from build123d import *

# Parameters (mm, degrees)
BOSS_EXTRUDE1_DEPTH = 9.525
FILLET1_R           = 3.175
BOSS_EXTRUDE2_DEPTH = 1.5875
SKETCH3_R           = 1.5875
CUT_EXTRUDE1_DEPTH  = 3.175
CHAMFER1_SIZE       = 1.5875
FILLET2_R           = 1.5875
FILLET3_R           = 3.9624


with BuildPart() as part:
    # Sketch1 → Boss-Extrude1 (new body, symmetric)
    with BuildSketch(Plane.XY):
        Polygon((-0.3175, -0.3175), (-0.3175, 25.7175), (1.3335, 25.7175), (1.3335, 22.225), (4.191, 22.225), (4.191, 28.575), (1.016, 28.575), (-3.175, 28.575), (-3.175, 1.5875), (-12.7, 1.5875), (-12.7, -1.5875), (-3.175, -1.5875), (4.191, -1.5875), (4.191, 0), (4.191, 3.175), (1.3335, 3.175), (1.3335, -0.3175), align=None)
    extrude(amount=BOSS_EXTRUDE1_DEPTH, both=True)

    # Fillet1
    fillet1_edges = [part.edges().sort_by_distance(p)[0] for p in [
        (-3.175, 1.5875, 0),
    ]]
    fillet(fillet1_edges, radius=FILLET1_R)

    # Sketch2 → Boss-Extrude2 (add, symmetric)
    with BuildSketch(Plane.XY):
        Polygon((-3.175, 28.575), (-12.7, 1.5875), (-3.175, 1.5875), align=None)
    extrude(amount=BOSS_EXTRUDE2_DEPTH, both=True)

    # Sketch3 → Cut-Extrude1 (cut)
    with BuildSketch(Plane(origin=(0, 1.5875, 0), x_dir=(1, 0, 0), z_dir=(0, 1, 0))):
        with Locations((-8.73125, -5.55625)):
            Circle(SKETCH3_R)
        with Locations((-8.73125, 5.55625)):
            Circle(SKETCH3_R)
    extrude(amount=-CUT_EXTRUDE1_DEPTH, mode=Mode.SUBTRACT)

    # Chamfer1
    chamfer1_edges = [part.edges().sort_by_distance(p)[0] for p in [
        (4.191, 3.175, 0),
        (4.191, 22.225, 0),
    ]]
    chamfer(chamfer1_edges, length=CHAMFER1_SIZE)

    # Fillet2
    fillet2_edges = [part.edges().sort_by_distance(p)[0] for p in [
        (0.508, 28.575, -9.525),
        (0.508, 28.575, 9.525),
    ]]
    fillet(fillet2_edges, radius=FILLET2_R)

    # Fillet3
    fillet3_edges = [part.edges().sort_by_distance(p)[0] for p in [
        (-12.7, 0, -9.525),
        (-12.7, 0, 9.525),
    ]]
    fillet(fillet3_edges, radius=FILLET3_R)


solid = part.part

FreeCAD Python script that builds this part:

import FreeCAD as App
import Part
import Sketcher
Q = App.Units.Quantity


def edges_at(feature, points):
    """Names of the edges that pass closest to the given points."""
    edges = feature.Shape.Edges
    near = lambda p: min(range(len(edges)), key=lambda i: edges[i].distToShape(Part.Vertex(*p))[0])
    return sorted({f"Edge{near(p) + 1}" for p in points})

doc = App.newDocument("Part")
body = doc.addObject("PartDesign::Body", "Body")

# Sketch on XY plane
sketch1 = body.newObject("Sketcher::SketchObject", "Sketch")
sketch1.AttachmentSupport = (doc.getObject("XY_Plane"), [""])
sketch1.MapMode = "FlatFace"
sketch1.addGeometry(Part.LineSegment(App.Vector(-0.3, -0.3, 0), App.Vector(-0.3, 25.7, 0)), False)
sketch1.addGeometry(Part.LineSegment(App.Vector(-0.3, 25.7, 0), App.Vector(1.3, 25.7, 0)), False)
sketch1.addGeometry(Part.LineSegment(App.Vector(1.3, 25.7, 0), App.Vector(1.3, 22.2, 0)), False)
sketch1.addGeometry(Part.LineSegment(App.Vector(1.3, 22.2, 0), App.Vector(4.2, 22.2, 0)), False)
sketch1.addGeometry(Part.LineSegment(App.Vector(4.2, 22.2, 0), App.Vector(4.2, 28.6, 0)), False)
sketch1.addGeometry(Part.LineSegment(App.Vector(4.2, 28.6, 0), App.Vector(-3.2, 28.6, 0)), False)
sketch1.addGeometry(Part.LineSegment(App.Vector(-3.2, 28.6, 0), App.Vector(-3.2, 1.6, 0)), False)
sketch1.addGeometry(Part.LineSegment(App.Vector(-3.2, 1.6, 0), App.Vector(-12.7, 1.6, 0)), False)
sketch1.addGeometry(Part.LineSegment(App.Vector(-12.7, 1.6, 0), App.Vector(-12.7, -1.6, 0)), False)
sketch1.addGeometry(Part.LineSegment(App.Vector(-12.7, -1.6, 0), App.Vector(4.2, -1.6, 0)), False)
sketch1.addGeometry(Part.LineSegment(App.Vector(4.2, -1.6, 0), App.Vector(4.2, 3.2, 0)), False)
sketch1.addGeometry(Part.LineSegment(App.Vector(4.2, 3.2, 0), App.Vector(1.3, 3.2, 0)), False)
sketch1.addGeometry(Part.LineSegment(App.Vector(1.3, 3.2, 0), App.Vector(1.3, -0.3, 0)), False)
sketch1.addGeometry(Part.LineSegment(App.Vector(1.3, -0.3, 0), App.Vector(-0.3, -0.3, 0)), False)
sketch1.addConstraint(Sketcher.Constraint("Coincident", 0, 2, 1, 1))
sketch1.addConstraint(Sketcher.Constraint("Coincident", 1, 2, 2, 1))
sketch1.addConstraint(Sketcher.Constraint("Coincident", 2, 2, 3, 1))
sketch1.addConstraint(Sketcher.Constraint("Coincident", 3, 2, 4, 1))
sketch1.addConstraint(Sketcher.Constraint("Coincident", 4, 2, 5, 1))
sketch1.addConstraint(Sketcher.Constraint("Coincident", 5, 2, 6, 1))
sketch1.addConstraint(Sketcher.Constraint("Coincident", 6, 2, 7, 1))
sketch1.addConstraint(Sketcher.Constraint("Coincident", 7, 2, 8, 1))
sketch1.addConstraint(Sketcher.Constraint("Coincident", 8, 2, 9, 1))
sketch1.addConstraint(Sketcher.Constraint("Coincident", 9, 2, 10, 1))
sketch1.addConstraint(Sketcher.Constraint("Coincident", 10, 2, 11, 1))
sketch1.addConstraint(Sketcher.Constraint("Coincident", 11, 2, 12, 1))
sketch1.addConstraint(Sketcher.Constraint("Coincident", 12, 2, 13, 1))
sketch1.addConstraint(Sketcher.Constraint("Coincident", 13, 2, 0, 1))
sketch1.addConstraint(Sketcher.Constraint("Vertical", 0))
sketch1.addConstraint(Sketcher.Constraint("Horizontal", 1))
sketch1.addConstraint(Sketcher.Constraint("Vertical", 2))
sketch1.addConstraint(Sketcher.Constraint("Horizontal", 3))
sketch1.addConstraint(Sketcher.Constraint("Vertical", 4))
sketch1.addConstraint(Sketcher.Constraint("Horizontal", 5))
sketch1.addConstraint(Sketcher.Constraint("Vertical", 6))
sketch1.addConstraint(Sketcher.Constraint("Horizontal", 7))
sketch1.addConstraint(Sketcher.Constraint("Vertical", 8))
sketch1.addConstraint(Sketcher.Constraint("Horizontal", 9))
sketch1.addConstraint(Sketcher.Constraint("Vertical", 10))
sketch1.addConstraint(Sketcher.Constraint("Horizontal", 11))
sketch1.addConstraint(Sketcher.Constraint("Vertical", 12))
sketch1.addConstraint(Sketcher.Constraint("Horizontal", 13))
sketch1.addConstraint(Sketcher.Constraint("Vertical", 4, 2, 9, 2))
sketch1.addConstraint(Sketcher.Constraint("Vertical", 2, 2, 11, 2))
sketch1.addConstraint(Sketcher.Constraint("Equal", 2, 12))
sketch1.addConstraint(Sketcher.Constraint("DistanceX", 5, 2, 5, 1, Q("0.29 in")))
sketch1.addConstraint(Sketcher.Constraint("DistanceY", 4, 1, 4, 2, Q("0.25 in")))
sketch1.addConstraint(Sketcher.Constraint("DistanceX", 7, 2, -1, 1, Q("0.5 in")))
sketch1.addConstraint(Sketcher.Constraint("DistanceX", 1, 1, 1, 2, Q("0.065 in")))
sketch1.addConstraint(Sketcher.Constraint("DistanceX", 7, 2, 7, 1, Q("0.375 in")))
sketch1.addConstraint(Sketcher.Constraint("DistanceY", 0, 1, 0, 2, Q("1.025 in")))
sketch1.addConstraint(Sketcher.Constraint("DistanceY", 6, 2, 6, 1, Q("1.0625 in")))
sketch1.addConstraint(Sketcher.Constraint("DistanceY", 8, 2, 8, 1, Q("0.125 in")))
sketch1.addConstraint(Sketcher.Constraint("DistanceY", 10, 1, 10, 2, Q("0.1875 in")))
sketch1.addConstraint(Sketcher.Constraint("DistanceX", 3, 1, 3, 2, Q("0.1125 in")))
sketch1.addConstraint(Sketcher.Constraint("DistanceY", -1, 1, 2, 2, Q("0.875 in")))
pad1 = body.newObject("PartDesign::Pad", "Pad")
pad1.Profile = sketch1
pad1.Length = Q("0.75 in")
pad1.Midplane = True
doc.recompute()

fillet = body.newObject("PartDesign::Fillet", "Fillet")
fillet.Base = (pad1, edges_at(pad1, [(-3.175, 1.587, 0)]))
fillet.Radius = Q("0.125 in")

# Sketch on XY plane
sketch2 = body.newObject("Sketcher::SketchObject", "Sketch001")
sketch2.AttachmentSupport = (doc.getObject("XY_Plane"), [""])
sketch2.MapMode = "FlatFace"
sketch2.addGeometry(Part.LineSegment(App.Vector(-3, 29, 0), App.Vector(-13, 2, 0)), False)
sketch2.addGeometry(Part.LineSegment(App.Vector(-13, 2, 0), App.Vector(-3, 2, 0)), False)
sketch2.addGeometry(Part.LineSegment(App.Vector(-3, 2, 0), App.Vector(-3, 29, 0)), False)
sketch2.addConstraint(Sketcher.Constraint("Coincident", 0, 2, 1, 1))
sketch2.addConstraint(Sketcher.Constraint("Coincident", 1, 2, 2, 1))
sketch2.addConstraint(Sketcher.Constraint("Coincident", 2, 2, 0, 1))
sketch2.addConstraint(Sketcher.Constraint("Horizontal", 1))
sketch2.addConstraint(Sketcher.Constraint("Vertical", 2))
sketch2.addConstraint(Sketcher.Constraint("DistanceX", 0, 2, -1, 1, Q("0.5 in")))
sketch2.addConstraint(Sketcher.Constraint("DistanceX", 1, 1, 1, 2, Q("0.375 in")))
sketch2.addConstraint(Sketcher.Constraint("DistanceY", 2, 1, 2, 2, Q("1.0625 in")))
sketch2.addConstraint(Sketcher.Constraint("DistanceY", -1, 1, 0, 2, Q("0.0625 in")))
pad2 = body.newObject("PartDesign::Pad", "Pad001")
pad2.Profile = sketch2
pad2.Length = Q("0.125 in")
pad2.Midplane = True

# Sketch on XZ plane
sketch3 = body.newObject("Sketcher::SketchObject", "Sketch002")
sketch3.AttachmentSupport = (doc.getObject("XZ_Plane"), [""])
sketch3.MapMode = "FlatFace"
sketch3.AttachmentOffset = App.Placement(App.Vector(0, 0, -0.0625 * 25.4), App.Rotation())
sketch3.addGeometry(Part.Circle(App.Vector(-8.7, 5.6, 0), App.Vector(0, 0, 1), 1.6), False)
sketch3.addGeometry(Part.Circle(App.Vector(-8.7, -5.6, 0), App.Vector(0, 0, 1), 1.6), False)
sketch3.addConstraint(Sketcher.Constraint("Equal", 0, 1))
sketch3.addConstraint(Sketcher.Constraint("Symmetric", 0, 3, 1, 3, -1))
sketch3.addConstraint(Sketcher.Constraint("Diameter", 0, Q("0.125 in")))
sketch3.addConstraint(Sketcher.Constraint("DistanceX", 0, 3, -1, 1, Q("0.34375 in")))
sketch3.addConstraint(Sketcher.Constraint("DistanceY", -1, 1, 0, 3, Q("0.21875 in")))
pocket1 = body.newObject("PartDesign::Pocket", "Pocket")
pocket1.Profile = sketch3
pocket1.Length = Q("0.125 in")
pocket1.Reversed = True
doc.recompute()

chamfer = body.newObject("PartDesign::Chamfer", "Chamfer")
chamfer.Base = (pocket1, edges_at(pocket1, [(4.191, 3.175, 0), (4.191, 22.225, 0)]))
chamfer.Size = Q("0.0625 in")
doc.recompute()

fillet2 = body.newObject("PartDesign::Fillet", "Fillet001")
fillet2.Base = (chamfer, edges_at(chamfer, [(0.508, 28.575, -9.525), (0.508, 28.575, 9.525)]))
fillet2.Radius = Q("0.0625 in")
doc.recompute()

fillet3 = body.newObject("PartDesign::Fillet", "Fillet002")
fillet3.Base = (fillet2, edges_at(fillet2, [(-12.7, 0, -9.525), (-12.7, 0, 9.525)]))
fillet3.Radius = Q("0.156 in")

doc.recompute()
